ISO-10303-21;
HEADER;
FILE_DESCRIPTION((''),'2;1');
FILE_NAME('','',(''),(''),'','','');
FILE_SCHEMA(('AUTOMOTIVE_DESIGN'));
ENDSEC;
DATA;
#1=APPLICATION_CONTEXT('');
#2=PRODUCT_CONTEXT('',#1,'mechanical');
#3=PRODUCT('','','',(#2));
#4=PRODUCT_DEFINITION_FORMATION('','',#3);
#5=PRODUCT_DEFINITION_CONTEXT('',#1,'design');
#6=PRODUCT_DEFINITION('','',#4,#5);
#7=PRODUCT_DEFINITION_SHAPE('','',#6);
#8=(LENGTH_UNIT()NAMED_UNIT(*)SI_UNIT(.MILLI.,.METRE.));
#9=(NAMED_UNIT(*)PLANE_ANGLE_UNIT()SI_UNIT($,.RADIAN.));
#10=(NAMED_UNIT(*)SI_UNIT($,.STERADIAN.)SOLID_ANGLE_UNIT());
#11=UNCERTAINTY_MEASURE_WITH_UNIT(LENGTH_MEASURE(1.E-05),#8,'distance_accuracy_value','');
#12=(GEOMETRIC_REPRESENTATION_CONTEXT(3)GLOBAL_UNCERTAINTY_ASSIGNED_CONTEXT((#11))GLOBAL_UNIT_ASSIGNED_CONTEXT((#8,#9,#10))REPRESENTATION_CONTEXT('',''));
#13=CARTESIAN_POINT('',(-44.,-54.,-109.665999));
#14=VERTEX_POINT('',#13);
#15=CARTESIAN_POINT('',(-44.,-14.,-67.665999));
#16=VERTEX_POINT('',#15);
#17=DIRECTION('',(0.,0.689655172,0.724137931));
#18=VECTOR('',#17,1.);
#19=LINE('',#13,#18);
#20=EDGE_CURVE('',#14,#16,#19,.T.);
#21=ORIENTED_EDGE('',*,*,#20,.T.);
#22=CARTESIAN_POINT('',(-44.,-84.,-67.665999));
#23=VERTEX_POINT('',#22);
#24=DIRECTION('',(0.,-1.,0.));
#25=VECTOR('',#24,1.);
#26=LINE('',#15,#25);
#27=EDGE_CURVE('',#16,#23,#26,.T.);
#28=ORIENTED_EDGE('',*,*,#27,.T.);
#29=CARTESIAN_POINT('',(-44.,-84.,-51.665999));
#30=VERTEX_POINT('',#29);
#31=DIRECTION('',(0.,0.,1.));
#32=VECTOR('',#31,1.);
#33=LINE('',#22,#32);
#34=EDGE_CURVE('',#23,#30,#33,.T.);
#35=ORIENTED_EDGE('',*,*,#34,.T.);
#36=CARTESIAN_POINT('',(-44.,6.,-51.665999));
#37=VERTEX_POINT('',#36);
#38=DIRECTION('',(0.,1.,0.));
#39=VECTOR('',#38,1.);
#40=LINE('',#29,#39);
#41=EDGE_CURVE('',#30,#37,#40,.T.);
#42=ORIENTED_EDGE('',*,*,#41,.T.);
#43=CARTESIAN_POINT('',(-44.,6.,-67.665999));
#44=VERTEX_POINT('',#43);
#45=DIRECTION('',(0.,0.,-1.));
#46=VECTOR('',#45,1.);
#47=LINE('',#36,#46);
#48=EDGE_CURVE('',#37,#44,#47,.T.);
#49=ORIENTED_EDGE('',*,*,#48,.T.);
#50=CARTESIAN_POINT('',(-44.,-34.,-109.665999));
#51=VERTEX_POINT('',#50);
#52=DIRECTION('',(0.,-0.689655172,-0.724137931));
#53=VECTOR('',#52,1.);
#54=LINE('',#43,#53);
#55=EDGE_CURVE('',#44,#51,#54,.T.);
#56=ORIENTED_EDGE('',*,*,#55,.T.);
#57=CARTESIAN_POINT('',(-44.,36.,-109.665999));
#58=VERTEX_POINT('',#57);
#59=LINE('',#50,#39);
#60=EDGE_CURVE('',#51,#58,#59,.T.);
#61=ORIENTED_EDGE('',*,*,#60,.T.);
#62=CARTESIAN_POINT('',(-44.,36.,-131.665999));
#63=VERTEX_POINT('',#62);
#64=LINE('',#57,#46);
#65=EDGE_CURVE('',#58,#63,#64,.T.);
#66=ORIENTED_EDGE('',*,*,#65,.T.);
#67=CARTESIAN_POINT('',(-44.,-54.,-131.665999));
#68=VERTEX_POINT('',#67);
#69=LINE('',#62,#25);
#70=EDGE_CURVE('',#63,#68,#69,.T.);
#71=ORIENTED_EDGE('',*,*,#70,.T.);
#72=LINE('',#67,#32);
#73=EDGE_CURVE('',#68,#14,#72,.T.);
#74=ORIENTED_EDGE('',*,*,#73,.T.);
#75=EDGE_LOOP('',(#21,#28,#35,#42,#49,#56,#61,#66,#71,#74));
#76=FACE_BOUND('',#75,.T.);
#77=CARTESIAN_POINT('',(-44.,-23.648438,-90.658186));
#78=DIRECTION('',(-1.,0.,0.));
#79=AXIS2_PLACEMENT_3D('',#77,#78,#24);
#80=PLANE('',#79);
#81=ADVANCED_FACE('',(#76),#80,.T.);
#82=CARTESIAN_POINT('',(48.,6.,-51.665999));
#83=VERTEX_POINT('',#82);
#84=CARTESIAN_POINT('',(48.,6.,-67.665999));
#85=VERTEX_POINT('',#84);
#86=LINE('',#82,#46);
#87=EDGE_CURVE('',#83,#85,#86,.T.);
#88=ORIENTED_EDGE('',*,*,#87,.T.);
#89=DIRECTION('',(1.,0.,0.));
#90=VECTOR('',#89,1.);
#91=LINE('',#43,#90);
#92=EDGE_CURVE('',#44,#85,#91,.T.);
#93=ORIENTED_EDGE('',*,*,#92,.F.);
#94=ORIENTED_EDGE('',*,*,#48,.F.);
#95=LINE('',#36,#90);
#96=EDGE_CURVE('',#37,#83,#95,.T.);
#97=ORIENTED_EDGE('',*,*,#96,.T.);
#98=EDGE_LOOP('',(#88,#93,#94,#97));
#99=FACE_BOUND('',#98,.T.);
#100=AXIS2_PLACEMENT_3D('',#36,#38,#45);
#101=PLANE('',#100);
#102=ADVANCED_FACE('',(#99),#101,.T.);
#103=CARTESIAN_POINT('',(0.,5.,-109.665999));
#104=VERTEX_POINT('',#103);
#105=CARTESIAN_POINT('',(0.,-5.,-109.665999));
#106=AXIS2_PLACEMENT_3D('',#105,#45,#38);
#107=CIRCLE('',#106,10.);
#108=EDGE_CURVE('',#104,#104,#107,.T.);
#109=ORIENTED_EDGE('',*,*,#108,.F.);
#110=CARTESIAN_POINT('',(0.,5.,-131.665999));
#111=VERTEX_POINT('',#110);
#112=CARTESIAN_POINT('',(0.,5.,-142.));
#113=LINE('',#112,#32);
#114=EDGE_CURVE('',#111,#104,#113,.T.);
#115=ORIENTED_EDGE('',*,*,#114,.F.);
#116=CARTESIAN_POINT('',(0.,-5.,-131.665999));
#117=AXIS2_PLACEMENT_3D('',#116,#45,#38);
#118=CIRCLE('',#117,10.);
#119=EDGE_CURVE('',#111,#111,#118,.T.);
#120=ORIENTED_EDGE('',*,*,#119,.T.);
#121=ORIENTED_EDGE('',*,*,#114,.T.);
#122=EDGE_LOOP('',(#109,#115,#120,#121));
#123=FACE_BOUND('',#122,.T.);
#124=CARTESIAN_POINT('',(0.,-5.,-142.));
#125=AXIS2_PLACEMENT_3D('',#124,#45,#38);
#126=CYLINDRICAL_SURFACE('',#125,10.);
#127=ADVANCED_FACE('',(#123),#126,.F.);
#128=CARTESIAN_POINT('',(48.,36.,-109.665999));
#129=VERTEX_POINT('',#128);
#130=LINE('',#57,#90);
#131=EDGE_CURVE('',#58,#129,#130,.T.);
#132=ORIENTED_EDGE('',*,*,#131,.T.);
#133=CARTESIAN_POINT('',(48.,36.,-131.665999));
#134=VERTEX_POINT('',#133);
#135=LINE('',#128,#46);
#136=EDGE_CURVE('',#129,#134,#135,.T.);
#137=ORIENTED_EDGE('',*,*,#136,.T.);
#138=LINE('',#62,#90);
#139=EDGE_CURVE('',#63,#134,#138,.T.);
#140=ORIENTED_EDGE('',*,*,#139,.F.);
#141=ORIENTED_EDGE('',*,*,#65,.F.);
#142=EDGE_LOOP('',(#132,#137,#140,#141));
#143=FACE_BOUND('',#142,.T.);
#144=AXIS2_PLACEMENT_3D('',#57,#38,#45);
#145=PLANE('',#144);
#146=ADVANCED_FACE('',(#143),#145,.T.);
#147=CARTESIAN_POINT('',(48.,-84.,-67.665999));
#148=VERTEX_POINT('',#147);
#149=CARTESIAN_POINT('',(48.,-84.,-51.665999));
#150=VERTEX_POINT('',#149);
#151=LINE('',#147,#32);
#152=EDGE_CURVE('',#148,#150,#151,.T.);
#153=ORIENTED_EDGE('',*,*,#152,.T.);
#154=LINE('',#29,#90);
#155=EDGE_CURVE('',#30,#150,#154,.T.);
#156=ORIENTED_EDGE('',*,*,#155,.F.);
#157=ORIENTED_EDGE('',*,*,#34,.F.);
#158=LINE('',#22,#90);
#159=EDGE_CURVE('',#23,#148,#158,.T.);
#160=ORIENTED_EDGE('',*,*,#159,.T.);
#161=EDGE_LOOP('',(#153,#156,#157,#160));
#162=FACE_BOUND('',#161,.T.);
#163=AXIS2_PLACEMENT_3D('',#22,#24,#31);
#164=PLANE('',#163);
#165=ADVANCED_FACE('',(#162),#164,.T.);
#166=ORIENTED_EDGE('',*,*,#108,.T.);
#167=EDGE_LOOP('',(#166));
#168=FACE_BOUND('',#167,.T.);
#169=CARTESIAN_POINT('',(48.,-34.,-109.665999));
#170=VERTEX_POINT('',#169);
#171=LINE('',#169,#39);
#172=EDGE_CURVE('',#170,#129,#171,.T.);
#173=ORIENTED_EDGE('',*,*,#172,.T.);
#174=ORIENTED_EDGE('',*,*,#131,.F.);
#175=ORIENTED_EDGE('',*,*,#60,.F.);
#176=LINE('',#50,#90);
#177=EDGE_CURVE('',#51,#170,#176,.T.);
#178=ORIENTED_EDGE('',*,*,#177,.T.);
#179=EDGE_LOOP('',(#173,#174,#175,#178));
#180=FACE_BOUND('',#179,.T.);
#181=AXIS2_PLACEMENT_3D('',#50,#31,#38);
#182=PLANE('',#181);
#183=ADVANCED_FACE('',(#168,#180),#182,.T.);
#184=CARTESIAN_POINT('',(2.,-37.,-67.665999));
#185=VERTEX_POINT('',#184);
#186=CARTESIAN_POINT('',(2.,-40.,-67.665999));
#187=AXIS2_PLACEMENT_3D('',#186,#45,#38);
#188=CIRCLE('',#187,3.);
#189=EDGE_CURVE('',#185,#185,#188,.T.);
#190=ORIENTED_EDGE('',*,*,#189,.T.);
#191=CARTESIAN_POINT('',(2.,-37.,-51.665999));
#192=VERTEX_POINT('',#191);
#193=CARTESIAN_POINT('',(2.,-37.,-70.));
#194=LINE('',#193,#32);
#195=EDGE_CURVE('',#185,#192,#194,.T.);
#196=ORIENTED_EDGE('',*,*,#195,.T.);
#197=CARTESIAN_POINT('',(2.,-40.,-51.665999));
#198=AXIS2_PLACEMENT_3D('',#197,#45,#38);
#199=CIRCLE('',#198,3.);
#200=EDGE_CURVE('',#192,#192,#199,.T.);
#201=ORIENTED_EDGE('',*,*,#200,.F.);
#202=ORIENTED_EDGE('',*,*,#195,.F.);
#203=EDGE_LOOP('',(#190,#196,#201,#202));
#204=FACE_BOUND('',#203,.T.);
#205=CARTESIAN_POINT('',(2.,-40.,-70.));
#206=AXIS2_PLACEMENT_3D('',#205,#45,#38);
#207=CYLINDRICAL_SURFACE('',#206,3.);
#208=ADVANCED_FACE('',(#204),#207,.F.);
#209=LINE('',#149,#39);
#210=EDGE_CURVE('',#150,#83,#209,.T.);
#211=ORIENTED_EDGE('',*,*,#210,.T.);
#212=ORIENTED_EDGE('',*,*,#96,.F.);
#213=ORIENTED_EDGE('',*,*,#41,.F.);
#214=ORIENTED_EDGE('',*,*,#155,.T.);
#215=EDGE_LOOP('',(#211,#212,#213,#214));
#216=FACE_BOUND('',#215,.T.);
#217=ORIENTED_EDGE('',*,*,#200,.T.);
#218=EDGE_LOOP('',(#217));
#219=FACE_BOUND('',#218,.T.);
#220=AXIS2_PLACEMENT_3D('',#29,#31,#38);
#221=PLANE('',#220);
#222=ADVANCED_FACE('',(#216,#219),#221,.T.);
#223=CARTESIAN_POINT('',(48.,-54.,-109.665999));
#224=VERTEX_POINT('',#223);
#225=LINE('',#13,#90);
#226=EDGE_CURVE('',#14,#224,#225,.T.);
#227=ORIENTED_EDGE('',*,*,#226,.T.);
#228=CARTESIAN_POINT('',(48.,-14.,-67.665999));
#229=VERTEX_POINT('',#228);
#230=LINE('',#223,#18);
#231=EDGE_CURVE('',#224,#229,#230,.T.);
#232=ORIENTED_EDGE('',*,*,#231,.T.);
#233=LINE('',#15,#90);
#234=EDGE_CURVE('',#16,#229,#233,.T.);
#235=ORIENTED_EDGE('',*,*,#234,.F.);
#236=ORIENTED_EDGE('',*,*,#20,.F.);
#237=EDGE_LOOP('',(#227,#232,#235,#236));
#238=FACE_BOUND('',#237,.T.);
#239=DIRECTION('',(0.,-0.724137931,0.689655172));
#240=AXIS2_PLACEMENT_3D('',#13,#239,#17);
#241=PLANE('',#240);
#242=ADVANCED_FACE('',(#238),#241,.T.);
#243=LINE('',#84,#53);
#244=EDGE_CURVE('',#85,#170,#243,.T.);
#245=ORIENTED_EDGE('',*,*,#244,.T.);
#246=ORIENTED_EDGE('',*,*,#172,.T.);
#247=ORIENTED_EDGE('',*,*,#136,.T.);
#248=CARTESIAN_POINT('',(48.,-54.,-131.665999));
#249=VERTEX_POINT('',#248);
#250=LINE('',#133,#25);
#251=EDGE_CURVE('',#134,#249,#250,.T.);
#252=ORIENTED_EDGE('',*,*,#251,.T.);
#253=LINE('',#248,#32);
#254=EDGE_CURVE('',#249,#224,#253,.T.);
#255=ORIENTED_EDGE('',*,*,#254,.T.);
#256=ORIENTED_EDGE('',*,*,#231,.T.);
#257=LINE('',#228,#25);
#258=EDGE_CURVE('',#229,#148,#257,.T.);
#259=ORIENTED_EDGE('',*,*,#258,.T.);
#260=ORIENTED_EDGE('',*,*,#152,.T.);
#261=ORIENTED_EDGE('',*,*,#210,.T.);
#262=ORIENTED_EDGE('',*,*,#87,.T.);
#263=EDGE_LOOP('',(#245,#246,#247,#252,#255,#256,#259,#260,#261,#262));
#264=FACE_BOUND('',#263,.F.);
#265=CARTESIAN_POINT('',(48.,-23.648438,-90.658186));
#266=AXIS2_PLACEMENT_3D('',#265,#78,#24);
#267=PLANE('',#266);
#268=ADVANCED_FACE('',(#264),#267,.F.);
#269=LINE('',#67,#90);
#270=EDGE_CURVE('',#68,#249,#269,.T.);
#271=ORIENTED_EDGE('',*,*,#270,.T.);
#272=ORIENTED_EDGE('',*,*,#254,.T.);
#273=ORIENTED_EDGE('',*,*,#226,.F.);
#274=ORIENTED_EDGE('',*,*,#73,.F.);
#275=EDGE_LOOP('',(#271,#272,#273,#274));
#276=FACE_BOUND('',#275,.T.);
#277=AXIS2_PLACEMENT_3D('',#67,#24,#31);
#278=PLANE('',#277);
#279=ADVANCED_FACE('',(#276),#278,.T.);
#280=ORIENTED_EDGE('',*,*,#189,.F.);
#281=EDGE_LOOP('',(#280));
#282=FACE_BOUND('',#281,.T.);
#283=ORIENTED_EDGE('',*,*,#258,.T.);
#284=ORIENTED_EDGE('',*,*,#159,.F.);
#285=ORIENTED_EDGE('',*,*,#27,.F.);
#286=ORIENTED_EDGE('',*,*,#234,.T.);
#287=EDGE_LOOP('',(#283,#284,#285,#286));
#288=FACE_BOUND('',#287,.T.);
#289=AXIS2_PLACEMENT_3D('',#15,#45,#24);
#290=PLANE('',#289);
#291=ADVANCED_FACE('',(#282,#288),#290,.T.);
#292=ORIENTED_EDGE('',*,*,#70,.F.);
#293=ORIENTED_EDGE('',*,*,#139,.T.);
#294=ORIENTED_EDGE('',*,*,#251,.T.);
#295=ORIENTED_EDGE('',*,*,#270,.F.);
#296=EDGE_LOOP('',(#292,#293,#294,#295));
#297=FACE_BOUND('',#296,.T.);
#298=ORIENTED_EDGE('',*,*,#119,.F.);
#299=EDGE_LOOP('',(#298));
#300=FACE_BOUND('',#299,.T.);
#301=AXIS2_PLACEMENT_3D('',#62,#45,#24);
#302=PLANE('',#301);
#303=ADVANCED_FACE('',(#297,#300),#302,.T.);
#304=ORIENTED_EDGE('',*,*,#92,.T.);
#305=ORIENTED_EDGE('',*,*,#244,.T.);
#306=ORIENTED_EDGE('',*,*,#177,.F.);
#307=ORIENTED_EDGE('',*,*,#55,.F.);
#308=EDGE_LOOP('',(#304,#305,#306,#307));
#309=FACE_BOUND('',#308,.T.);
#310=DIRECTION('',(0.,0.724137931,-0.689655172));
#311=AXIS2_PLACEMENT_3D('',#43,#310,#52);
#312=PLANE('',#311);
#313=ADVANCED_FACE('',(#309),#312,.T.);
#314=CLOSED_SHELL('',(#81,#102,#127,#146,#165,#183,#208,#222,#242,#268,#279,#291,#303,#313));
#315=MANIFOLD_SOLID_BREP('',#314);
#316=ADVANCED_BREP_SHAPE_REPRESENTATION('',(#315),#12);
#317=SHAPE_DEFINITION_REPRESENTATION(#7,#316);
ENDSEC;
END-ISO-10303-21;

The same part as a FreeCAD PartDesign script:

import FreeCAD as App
import Part
import Sketcher

V = App.Vector
Q = App.Units.Quantity

doc = App.newDocument("Part")
body = doc.addObject("PartDesign::Body", "Body")

sketch1 = body.newObject("Sketcher::SketchObject", "Sketch")
sketch1.AttachmentSupport = (doc.getObject("XY_Plane"), [""])
sketch1.MapMode = "FlatFace"
sketch1.AttachmentOffset = App.Placement(V(0, 0, 34), App.Rotation())
sketch1.addGeometry(Part.Circle(V(-31, -46, 0), V(0, 0, 1), 3), False)
sketch1.addConstraint(Sketcher.Constraint("Diameter", 0, Q("6 mm")))
sketch1.addConstraint(Sketcher.Constraint("DistanceX", 0, 3, -1, 1, Q("31 mm")))
sketch1.addConstraint(Sketcher.Constraint("DistanceY", 0, 3, -1, 1, Q("46 mm")))
pad1 = body.newObject("PartDesign::Pad", "Pad")
pad1.Profile = sketch1
pad1.Length = 20
body2 = doc.addObject("PartDesign::Body", "Body001")

sketch2 = body2.newObject("Sketcher::SketchObject", "Sketch001")
sketch2.AttachmentSupport = (doc.getObject("XY_Plane001"), [""])
sketch2.MapMode = "FlatFace"
sketch2.AttachmentOffset = App.Placement(V(0, 0, -38), App.Rotation())
sketch2.addGeometry(Part.Circle(V(4, -44, 0), V(0, 0, 1), 10), False)
sketch2.addConstraint(Sketcher.Constraint("Diameter", 0, Q("20 mm")))
sketch2.addConstraint(Sketcher.Constraint("DistanceX", -1, 1, 0, 3, Q("4 mm")))
sketch2.addConstraint(Sketcher.Constraint("DistanceY", 0, 3, -1, 1, Q("44 mm")))
pad2 = body2.newObject("PartDesign::Pad", "Pad001")
pad2.Profile = sketch2
pad2.Length = 50
body3 = doc.addObject("PartDesign::Body", "Body002")

sketch3 = body3.newObject("Sketcher::SketchObject", "Sketch002")
sketch3.AttachmentSupport = (doc.getObject("XZ_Plane002"), [""])
sketch3.MapMode = "FlatFace"
sketch3.addGeometry(Part.LineSegment(V(-45, -28, 0), V(45, -28, 0)), False)
sketch3.addGeometry(Part.LineSegment(V(45, -28, 0), V(45, -6, 0)), False)
sketch3.addGeometry(Part.LineSegment(V(45, -6, 0), V(-25, -6, 0)), False)
sketch3.addGeometry(Part.LineSegment(V(-25, -6, 0), V(15, 36, 0)), False)
sketch3.addGeometry(Part.LineSegment(V(15, 36, 0), V(15, 52, 0)), False)
sketch3.addGeometry(Part.LineSegment(V(15, 52, 0), V(-75, 52, 0)), False)
sketch3.addGeometry(Part.LineSegment(V(-75, 52, 0), V(-75, 36, 0)), False)
sketch3.addGeometry(Part.LineSegment(V(-75, 36, 0), V(-5, 36, 0)), False)
sketch3.addGeometry(Part.LineSegment(V(-5, 36, 0), V(-45, -6, 0)), False)
sketch3.addGeometry(Part.LineSegment(V(-45, -6, 0), V(-45, -28, 0)), False)
sketch3.addConstraint(Sketcher.Constraint("Coincident", 0, 2, 1, 1))
sketch3.addConstraint(Sketcher.Constraint("Coincident", 1, 2, 2, 1))
sketch3.addConstraint(Sketcher.Constraint("Coincident", 2, 2, 3, 1))
sketch3.addConstraint(Sketcher.Constraint("Coincident", 3, 2, 4, 1))
sketch3.addConstraint(Sketcher.Constraint("Coincident", 4, 2, 5, 1))
sketch3.addConstraint(Sketcher.Constraint("Coincident", 5, 2, 6, 1))
sketch3.addConstraint(Sketcher.Constraint("Coincident", 6, 2, 7, 1))
sketch3.addConstraint(Sketcher.Constraint("Coincident", 7, 2, 8, 1))
sketch3.addConstraint(Sketcher.Constraint("Coincident", 8, 2, 9, 1))
sketch3.addConstraint(Sketcher.Constraint("Coincident", 9, 2, 0, 1))
sketch3.addConstraint(Sketcher.Constraint("Horizontal", 0))
sketch3.addConstraint(Sketcher.Constraint("Vertical", 1))
sketch3.addConstraint(Sketcher.Constraint("Horizontal", 2))
sketch3.addConstraint(Sketcher.Constraint("Vertical", 4))
sketch3.addConstraint(Sketcher.Constraint("Horizontal", 5))
sketch3.addConstraint(Sketcher.Constraint("Vertical", 6))
sketch3.addConstraint(Sketcher.Constraint("Horizontal", 7))
sketch3.addConstraint(Sketcher.Constraint("Vertical", 9))
sketch3.addConstraint(Sketcher.Constraint("Symmetric", 1, 2, 8, 2, -2))
sketch3.addConstraint(Sketcher.Constraint("Parallel", 3, 8))
sketch3.addConstraint(Sketcher.Constraint("Horizontal", 3, 2, 6, 2))
sketch3.addConstraint(Sketcher.Constraint("Equal", 0, 5))
sketch3.addConstraint(Sketcher.Constraint("DistanceX", 0, 1, 0, 2, Q("90 mm")))
sketch3.addConstraint(Sketcher.Constraint("DistanceX", 2, 2, 2, 1, Q("70 mm")))
sketch3.addConstraint(Sketcher.Constraint("DistanceY", 1, 1, 1, 2, Q("22 mm")))
sketch3.addConstraint(Sketcher.Constraint("DistanceY", 4, 1, 4, 2, Q("16 mm")))
sketch3.addConstraint(Sketcher.Constraint("Distance", 3, Q("58 mm")))
sketch3.addConstraint(Sketcher.Constraint("DistanceX", -1, 1, 3, 2, Q("15 mm")))
sketch3.addConstraint(Sketcher.Constraint("DistanceY", 0, 2, -1, 1, Q("27.665999 mm")))
pad3 = body3.newObject("PartDesign::Pad", "Pad002")
pad3.Profile = sketch3
pad3.Length = 92
doc.recompute()

boolean = body3.newObject("PartDesign::Boolean", "Boolean")
boolean.Type = "Cut"
boolean.addObjects([body2])
doc.recompute()

boolean2 = body3.newObject("PartDesign::Boolean", "Boolean001")
boolean2.Type = "Cut"
boolean2.addObjects([body])
body4 = doc.addObject("PartDesign::Body", "Body003")
doc.recompute()

body3.Placement = App.Placement(V(-44, -9, -104), App.Rotation(V(0, 0, 1), 90))
boolean3 = body4.newObject("PartDesign::Boolean", "Boolean002")
boolean3.Type = "Fuse"
boolean3.addObjects([body3])

doc.recompute()
